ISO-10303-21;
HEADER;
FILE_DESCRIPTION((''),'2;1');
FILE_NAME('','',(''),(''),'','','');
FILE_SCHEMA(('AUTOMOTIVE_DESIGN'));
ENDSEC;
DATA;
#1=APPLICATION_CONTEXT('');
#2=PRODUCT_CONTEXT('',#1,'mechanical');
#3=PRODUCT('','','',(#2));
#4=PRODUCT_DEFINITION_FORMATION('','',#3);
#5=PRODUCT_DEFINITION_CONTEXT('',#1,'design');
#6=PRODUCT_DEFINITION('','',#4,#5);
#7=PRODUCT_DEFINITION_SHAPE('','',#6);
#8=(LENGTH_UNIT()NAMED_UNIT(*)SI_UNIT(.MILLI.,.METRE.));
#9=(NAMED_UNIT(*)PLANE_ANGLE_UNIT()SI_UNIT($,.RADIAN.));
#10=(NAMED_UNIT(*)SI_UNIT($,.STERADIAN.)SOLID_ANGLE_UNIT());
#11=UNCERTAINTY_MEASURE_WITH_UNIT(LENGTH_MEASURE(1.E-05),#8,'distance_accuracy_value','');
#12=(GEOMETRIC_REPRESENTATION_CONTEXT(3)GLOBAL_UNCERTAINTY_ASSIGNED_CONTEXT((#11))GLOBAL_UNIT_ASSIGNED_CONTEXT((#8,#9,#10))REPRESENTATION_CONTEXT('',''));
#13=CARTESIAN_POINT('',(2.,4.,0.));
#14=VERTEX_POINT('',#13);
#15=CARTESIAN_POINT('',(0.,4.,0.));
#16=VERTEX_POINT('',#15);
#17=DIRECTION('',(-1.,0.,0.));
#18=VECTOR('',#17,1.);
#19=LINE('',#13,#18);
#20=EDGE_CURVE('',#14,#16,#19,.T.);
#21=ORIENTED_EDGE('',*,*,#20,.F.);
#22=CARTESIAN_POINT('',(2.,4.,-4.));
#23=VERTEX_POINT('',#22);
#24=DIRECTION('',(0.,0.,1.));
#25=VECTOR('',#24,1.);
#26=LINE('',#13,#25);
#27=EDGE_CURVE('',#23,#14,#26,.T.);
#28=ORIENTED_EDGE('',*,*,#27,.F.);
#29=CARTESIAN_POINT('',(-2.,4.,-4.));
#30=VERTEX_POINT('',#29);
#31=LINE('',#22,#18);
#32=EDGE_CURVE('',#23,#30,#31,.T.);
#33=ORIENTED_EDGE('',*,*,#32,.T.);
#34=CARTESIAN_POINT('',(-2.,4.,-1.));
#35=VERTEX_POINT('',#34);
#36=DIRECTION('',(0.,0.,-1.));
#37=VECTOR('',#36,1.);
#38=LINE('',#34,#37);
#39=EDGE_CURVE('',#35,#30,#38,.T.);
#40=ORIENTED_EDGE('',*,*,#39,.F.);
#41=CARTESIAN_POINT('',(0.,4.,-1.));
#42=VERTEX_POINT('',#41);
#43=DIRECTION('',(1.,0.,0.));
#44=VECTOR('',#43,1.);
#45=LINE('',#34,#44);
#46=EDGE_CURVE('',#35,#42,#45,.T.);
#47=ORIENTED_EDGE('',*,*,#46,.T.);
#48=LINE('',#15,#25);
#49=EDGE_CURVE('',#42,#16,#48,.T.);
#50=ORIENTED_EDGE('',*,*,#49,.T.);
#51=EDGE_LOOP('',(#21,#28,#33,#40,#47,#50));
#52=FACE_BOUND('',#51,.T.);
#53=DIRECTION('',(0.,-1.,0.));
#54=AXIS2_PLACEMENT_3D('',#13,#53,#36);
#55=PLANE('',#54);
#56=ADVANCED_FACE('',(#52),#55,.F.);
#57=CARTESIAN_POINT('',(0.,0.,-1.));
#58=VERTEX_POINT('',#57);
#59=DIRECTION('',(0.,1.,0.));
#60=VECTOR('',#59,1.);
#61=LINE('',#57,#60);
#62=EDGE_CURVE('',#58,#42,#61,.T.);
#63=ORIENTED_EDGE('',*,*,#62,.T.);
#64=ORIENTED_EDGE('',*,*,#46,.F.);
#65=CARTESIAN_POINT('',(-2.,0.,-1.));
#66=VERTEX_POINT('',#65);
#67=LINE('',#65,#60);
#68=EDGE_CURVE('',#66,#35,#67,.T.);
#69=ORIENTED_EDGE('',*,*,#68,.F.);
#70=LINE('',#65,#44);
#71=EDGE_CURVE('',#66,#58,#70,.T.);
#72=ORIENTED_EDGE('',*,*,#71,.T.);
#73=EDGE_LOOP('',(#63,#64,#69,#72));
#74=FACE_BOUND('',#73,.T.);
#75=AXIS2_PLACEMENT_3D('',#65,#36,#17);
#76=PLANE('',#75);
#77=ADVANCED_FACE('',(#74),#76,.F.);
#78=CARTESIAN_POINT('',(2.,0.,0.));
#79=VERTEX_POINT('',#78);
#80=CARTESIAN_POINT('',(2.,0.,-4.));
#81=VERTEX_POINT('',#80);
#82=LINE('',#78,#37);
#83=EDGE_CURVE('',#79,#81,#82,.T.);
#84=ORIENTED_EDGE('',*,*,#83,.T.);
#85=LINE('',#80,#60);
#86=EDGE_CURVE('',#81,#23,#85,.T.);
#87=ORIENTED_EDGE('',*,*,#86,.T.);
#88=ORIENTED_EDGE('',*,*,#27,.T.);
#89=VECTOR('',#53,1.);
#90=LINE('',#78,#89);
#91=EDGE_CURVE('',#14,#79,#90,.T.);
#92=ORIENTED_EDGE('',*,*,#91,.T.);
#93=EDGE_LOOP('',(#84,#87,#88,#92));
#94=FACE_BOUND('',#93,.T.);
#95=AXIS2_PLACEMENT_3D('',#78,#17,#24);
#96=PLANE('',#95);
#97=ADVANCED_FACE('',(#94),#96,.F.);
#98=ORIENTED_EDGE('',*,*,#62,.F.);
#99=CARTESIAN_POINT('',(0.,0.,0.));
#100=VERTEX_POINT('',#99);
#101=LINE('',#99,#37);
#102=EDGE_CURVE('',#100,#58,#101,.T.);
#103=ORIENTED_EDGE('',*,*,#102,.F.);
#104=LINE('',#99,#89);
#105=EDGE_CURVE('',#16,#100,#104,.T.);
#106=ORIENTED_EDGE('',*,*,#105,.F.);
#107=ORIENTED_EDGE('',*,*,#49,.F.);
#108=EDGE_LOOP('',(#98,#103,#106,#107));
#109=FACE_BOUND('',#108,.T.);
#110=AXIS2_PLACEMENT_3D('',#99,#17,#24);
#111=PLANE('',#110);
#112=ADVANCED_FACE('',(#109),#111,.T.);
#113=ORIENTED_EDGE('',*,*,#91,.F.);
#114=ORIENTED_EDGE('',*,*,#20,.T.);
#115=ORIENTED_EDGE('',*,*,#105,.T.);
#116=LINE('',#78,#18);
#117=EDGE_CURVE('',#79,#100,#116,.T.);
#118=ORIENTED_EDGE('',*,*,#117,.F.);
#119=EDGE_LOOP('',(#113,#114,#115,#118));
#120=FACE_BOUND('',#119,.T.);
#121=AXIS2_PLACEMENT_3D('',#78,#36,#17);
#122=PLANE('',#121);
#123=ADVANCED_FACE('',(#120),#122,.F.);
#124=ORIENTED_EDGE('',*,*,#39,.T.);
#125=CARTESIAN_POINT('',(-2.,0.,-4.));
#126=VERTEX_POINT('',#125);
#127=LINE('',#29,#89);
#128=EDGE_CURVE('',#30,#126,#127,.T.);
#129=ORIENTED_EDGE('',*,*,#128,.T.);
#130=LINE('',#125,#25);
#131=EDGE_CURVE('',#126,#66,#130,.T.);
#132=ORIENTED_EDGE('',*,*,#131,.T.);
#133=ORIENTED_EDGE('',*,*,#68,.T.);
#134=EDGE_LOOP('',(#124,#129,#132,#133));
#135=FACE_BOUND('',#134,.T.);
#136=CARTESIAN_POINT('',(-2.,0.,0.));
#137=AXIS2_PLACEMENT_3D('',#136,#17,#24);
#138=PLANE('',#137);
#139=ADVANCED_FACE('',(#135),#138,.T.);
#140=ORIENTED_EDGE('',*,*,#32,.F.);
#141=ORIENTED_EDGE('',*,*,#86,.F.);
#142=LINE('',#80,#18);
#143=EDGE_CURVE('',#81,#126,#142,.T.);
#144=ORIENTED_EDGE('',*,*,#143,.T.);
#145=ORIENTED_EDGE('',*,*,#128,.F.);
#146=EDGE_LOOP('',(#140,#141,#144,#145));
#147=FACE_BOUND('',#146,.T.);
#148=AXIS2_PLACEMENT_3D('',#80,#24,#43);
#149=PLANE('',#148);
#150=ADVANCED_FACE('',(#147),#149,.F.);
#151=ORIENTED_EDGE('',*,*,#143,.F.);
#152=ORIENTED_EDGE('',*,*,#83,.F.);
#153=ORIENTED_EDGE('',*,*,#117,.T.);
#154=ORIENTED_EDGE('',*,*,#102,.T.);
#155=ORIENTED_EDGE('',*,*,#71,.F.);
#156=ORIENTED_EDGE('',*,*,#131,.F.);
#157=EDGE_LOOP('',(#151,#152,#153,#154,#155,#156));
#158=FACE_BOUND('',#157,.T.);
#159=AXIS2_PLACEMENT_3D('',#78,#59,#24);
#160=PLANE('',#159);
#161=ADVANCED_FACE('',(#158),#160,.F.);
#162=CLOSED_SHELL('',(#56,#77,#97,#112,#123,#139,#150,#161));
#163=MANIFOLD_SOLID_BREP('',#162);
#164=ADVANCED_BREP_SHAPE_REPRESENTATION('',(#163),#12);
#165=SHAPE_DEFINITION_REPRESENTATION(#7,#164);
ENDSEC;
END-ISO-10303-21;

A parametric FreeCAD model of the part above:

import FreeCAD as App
import Part
import Sketcher


def add_polygon(sketch, points):
    """Adds a closed chain of lines whose ends are joined by coincident constraints."""
    first, n = sketch.GeometryCount, len(points)
    for a, b in zip(points, points[1:] + points[:1]):
        sketch.addGeometry(Part.LineSegment(App.Vector(*a, 0), App.Vector(*b, 0)), False)
    for i in range(n):
        sketch.addConstraint(Sketcher.Constraint("Coincident", first + i, 2, first + (i + 1) % n, 1))

doc = App.newDocument("Part")
params = doc.addObject("Spreadsheet::Sheet", "Params")
for row, (alias, value) in enumerate([
    ("sketch1_width", "4 mm"),
    ("pad1_length", "2 mm"),
    ("sketch2_width", "4 mm"),
    ("sketch2_height", "3 mm"),
    ("pad2_length", "2 mm"),
], start=1):
    params.set(f"A{row}", alias)
    params.set(f"B{row}", "=" + value)
    params.setAlias(f"B{row}", alias)

body = doc.addObject("PartDesign::Body", "Body")

sketch1 = body.newObject("Sketcher::SketchObject", "Sketch")
sketch1.AttachmentSupport = (doc.getObject("YZ_Plane"), [""])
sketch1.MapMode = "FlatFace"
add_polygon(sketch1, [(4, 0), (0, 0), (0, -4), (4, -4)])
sketch1.addConstraint(Sketcher.Constraint("Horizontal", 0))
sketch1.addConstraint(Sketcher.Constraint("Vertical", 1))
sketch1.addConstraint(Sketcher.Constraint("Horizontal", 2))
sketch1.addConstraint(Sketcher.Constraint("Vertical", 3))
sketch1.addConstraint(Sketcher.Constraint("Coincident", 0, 2, -1, 1))
sketch1.addConstraint(Sketcher.Constraint("Equal", 2, 1))
sketch1.addConstraint(Sketcher.Constraint("DistanceX", 0, 2, 0, 1, 4.0))
sketch1.setExpression("Constraints[10]", "Params.sketch1_width")
pad1 = body.newObject("PartDesign::Pad", "Pad")
pad1.Profile = sketch1
pad1.setExpression("Length", "Params.pad1_length")

sketch2 = body.newObject("Sketcher::SketchObject", "Sketch001")
sketch2.AttachmentSupport = (doc.getObject("YZ_Plane"), [""])
sketch2.MapMode = "FlatFace"
add_polygon(sketch2, [(4, -4), (0, -4), (0, -1), (4, -1)])
sketch2.addConstraint(Sketcher.Constraint("Horizontal", 0))
sketch2.addConstraint(Sketcher.Constraint("Vertical", 1))
sketch2.addConstraint(Sketcher.Constraint("Horizontal", 2))
sketch2.addConstraint(Sketcher.Constraint("Vertical", 3))
sketch2.addConstraint(Sketcher.Constraint("PointOnObject", 0, 2, -2))
sketch2.addConstraint(Sketcher.Constraint("DistanceX", 0, 2, 0, 1, 4.0))
sketch2.addConstraint(Sketcher.Constraint("DistanceY", 1, 1, 1, 2, 3.0))
sketch2.addConstraint(Sketcher.Constraint("DistanceY", 0, 2, -1, 1, 4.0))
sketch2.setExpression("Constraints[9]", "Params.sketch2_width")
sketch2.setExpression("Constraints[10]", "Params.sketch2_height")
pad2 = body.newObject("PartDesign::Pad", "Pad001")
pad2.Profile = sketch2
pad2.setExpression("Length", "Params.pad2_length")
pad2.Reversed = True

doc.recompute()
